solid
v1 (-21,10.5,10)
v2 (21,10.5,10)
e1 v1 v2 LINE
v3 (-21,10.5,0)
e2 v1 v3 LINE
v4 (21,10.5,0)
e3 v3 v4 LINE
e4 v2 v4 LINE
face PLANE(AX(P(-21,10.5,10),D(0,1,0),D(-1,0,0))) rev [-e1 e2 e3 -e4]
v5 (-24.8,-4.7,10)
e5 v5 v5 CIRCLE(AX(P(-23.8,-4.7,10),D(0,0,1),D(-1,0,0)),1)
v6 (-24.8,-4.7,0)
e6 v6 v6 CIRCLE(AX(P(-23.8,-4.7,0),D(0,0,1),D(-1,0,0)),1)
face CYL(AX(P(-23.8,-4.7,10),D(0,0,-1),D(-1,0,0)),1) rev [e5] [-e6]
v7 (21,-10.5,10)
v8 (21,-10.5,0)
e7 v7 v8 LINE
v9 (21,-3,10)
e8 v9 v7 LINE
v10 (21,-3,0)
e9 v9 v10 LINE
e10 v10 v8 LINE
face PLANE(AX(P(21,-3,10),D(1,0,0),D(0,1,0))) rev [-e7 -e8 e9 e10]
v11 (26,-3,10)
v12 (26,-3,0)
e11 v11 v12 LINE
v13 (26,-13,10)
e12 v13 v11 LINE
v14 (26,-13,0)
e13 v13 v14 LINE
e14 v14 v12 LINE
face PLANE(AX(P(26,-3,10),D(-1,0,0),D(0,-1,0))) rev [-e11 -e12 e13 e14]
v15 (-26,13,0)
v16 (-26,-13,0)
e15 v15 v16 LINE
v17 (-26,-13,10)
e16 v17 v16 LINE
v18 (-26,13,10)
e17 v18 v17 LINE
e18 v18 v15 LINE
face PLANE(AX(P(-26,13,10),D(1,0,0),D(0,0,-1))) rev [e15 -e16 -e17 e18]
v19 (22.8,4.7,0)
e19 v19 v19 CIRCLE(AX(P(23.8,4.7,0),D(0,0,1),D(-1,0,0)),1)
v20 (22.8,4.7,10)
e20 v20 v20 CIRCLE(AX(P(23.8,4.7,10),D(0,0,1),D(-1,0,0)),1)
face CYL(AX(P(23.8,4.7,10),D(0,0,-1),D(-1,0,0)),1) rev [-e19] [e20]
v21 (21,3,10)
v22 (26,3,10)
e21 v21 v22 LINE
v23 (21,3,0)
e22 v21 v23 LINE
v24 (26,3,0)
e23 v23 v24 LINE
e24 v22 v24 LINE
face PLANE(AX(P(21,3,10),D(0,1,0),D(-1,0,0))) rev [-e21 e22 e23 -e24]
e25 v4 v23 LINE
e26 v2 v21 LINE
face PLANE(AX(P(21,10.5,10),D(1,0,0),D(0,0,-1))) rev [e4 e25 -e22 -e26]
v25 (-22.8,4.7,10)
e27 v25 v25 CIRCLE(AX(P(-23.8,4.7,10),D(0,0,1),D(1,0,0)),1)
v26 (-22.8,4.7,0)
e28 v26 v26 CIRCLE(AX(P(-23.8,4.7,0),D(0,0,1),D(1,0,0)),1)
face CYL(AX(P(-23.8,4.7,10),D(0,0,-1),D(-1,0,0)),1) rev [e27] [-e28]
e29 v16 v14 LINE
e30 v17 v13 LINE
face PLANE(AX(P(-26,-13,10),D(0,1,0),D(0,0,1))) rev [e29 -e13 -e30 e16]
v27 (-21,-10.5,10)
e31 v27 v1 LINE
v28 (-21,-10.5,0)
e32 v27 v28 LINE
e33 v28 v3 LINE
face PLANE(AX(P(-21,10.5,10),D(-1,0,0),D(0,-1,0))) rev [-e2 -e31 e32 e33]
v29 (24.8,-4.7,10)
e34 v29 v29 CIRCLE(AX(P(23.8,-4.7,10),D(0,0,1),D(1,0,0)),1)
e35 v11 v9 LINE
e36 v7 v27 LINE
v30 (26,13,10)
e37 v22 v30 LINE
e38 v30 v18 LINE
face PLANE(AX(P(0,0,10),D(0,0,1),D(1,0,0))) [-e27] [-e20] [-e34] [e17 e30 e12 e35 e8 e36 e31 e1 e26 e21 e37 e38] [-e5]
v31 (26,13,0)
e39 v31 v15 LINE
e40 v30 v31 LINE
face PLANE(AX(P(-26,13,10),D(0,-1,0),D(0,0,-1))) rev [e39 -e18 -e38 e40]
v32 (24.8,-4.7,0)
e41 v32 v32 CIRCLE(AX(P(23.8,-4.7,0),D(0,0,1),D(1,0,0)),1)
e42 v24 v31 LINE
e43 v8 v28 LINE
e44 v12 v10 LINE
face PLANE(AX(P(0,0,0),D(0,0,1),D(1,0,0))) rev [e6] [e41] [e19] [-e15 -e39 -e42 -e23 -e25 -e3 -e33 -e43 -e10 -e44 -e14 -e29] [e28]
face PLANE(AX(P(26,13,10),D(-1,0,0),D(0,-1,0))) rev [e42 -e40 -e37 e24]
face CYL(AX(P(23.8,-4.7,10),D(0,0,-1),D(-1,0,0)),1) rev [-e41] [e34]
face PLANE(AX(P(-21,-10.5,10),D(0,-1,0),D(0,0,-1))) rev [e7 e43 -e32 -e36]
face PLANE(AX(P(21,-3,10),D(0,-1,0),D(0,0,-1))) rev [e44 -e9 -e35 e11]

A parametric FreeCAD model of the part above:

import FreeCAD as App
import Part
import Sketcher
from FreeCAD import Vector


def add_polygon(sketch, points):
    """Adds a closed chain of lines whose ends are joined by coincident constraints."""
    first, n = sketch.GeometryCount, len(points)
    for a, b in zip(points, points[1:] + points[:1]):
        sketch.addGeometry(Part.LineSegment(App.Vector(*a, 0), App.Vector(*b, 0)), False)
    for i in range(n):
        sketch.addConstraint(Sketcher.Constraint("Coincident", first + i, 2, first + (i + 1) % n, 1))

doc = App.newDocument("Part")
body = doc.addObject("PartDesign::Body", "Body")

sketch1 = body.newObject("Sketcher::SketchObject", "Sketch")
sketch1.AttachmentSupport = (doc.getObject("XY_Plane"), [""])
sketch1.MapMode = "FlatFace"
add_polygon(sketch1, [(-21, 10.5), (21, 10.5), (21, 3), (26, 3), (26, 13), (-26, 13), (-26, -13), (26, -13), (26, -3), (21, -3), (21, -10.5), (-21, -10.5)])
sketch1.addGeometry(Part.Circle(Vector(-23.8, -4.7, 0), Vector(0, 0, 1), 1), False)
sketch1.addGeometry(Part.Circle(Vector(23.8, -4.7, 0), Vector(0, 0, 1), 1), False)
sketch1.addGeometry(Part.Circle(Vector(-23.8, 4.7, 0), Vector(0, 0, 1), 1), False)
sketch1.addGeometry(Part.Circle(Vector(23.8, 4.7, 0), Vector(0, 0, 1), 1), False)
sketch1.addConstraint([
    Sketcher.Constraint("Horizontal", 0),
    Sketcher.Constraint("Vertical", 1),
    Sketcher.Constraint("Horizontal", 2),
    Sketcher.Constraint("Vertical", 3),
    Sketcher.Constraint("Horizontal", 4),
    Sketcher.Constraint("Vertical", 5),
    Sketcher.Constraint("Horizontal", 6),
    Sketcher.Constraint("Vertical", 7),
    Sketcher.Constraint("Horizontal", 8),
    Sketcher.Constraint("Vertical", 9),
    Sketcher.Constraint("Horizontal", 10),
    Sketcher.Constraint("Vertical", 11),
    Sketcher.Constraint("Equal", 12, 13),
    Sketcher.Constraint("Equal", 13, 14),
    Sketcher.Constraint("Equal", 14, 15),
    Sketcher.Constraint("Symmetric", 13, 3, 14, 3, -1, 1),
    Sketcher.Constraint("Symmetric", 12, 3, 15, 3, -1, 1),
    Sketcher.Constraint("Symmetric", 3, 2, 5, 2, -1, 1),
    Sketcher.Constraint("Symmetric", 0, 2, 10, 2, -1, 1),
    Sketcher.Constraint("Symmetric", 12, 3, 13, 3, -2),
    Sketcher.Constraint("Symmetric", 2, 2, 7, 2, -1),
    Sketcher.Constraint("Vertical", 1, 2, 8, 2),
    Sketcher.Constraint("Diameter", 12, 2.0),
    Sketcher.Constraint("DistanceX", 0, 1, 0, 2, 42.0),
    Sketcher.Constraint("DistanceX", 2, 1, 2, 2, 5.0),
    Sketcher.Constraint("DistanceY", 3, 1, 3, 2, 10.0),
    Sketcher.Constraint("DistanceY", 5, 2, 5, 1, 26.0),
    Sketcher.Constraint("DistanceY", 11, 1, 11, 2, 21.0),
    Sketcher.Constraint("DistanceX", 12, 3, -1, 1, 23.8),
    Sketcher.Constraint("DistanceY", 12, 3, -1, 1, 4.7),
])
pad1 = body.newObject("PartDesign::Pad", "Pad")
pad1.Profile = sketch1
pad1.Length = 10

doc.recompute()
